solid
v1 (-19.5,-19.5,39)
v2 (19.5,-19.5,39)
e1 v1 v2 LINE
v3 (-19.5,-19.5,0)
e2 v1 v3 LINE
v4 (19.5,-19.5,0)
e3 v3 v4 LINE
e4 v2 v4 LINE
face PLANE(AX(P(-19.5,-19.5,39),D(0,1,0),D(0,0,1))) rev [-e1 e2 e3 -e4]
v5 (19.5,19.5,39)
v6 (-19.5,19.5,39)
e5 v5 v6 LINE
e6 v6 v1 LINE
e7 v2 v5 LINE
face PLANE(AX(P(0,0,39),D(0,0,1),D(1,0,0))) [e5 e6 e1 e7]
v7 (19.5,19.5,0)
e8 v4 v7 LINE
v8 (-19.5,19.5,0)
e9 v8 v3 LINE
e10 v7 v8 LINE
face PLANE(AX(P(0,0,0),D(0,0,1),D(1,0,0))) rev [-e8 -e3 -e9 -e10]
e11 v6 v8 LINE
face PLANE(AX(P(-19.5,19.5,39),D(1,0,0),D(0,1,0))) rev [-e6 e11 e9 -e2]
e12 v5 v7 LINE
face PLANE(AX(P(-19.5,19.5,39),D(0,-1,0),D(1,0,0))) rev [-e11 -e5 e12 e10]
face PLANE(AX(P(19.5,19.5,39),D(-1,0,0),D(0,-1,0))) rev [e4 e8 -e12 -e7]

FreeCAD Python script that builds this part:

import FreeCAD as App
import Part
import Sketcher

doc = App.newDocument("Part")
body = doc.addObject("PartDesign::Body", "Body")

# Sketch on XY plane
sketch1 = body.newObject("Sketcher::SketchObject", "Sketch")
sketch1.AttachmentSupport = (doc.getObject("XY_Plane"), [""])
sketch1.MapMode = "FlatFace"
sketch1.addGeometry([
    Part.LineSegment(App.Vector(-19.5, 19.5, 0), App.Vector(-19.5, -19.5, 0)),
    Part.LineSegment(App.Vector(-19.5, -19.5, 0), App.Vector(19.5, -19.5, 0)),
    Part.LineSegment(App.Vector(19.5, -19.5, 0), App.Vector(19.5, 19.5, 0)),
    Part.LineSegment(App.Vector(19.5, 19.5, 0), App.Vector(-19.5, 19.5, 0)),
], False)
sketch1.addConstraint([
    Sketcher.Constraint("Coincident", 0, 2, 1, 1),
    Sketcher.Constraint("Coincident", 1, 2, 2, 1),
    Sketcher.Constraint("Coincident", 2, 2, 3, 1),
    Sketcher.Constraint("Coincident", 3, 2, 0, 1),
    Sketcher.Constraint("Vertical", 0),
    Sketcher.Constraint("Horizontal", 1),
    Sketcher.Constraint("Vertical", 2),
    Sketcher.Constraint("Horizontal", 3),
    Sketcher.Constraint("Symmetric", 0, 2, 2, 2, -1, 1),
    Sketcher.Constraint("Equal", 3, 0),
    Sketcher.Constraint("DistanceX", 1, 1, 1, 2, 39.0),
])
pad1 = body.newObject("PartDesign::Pad", "Pad")
pad1.Profile = sketch1
pad1.Length = 39

doc.recompute()
